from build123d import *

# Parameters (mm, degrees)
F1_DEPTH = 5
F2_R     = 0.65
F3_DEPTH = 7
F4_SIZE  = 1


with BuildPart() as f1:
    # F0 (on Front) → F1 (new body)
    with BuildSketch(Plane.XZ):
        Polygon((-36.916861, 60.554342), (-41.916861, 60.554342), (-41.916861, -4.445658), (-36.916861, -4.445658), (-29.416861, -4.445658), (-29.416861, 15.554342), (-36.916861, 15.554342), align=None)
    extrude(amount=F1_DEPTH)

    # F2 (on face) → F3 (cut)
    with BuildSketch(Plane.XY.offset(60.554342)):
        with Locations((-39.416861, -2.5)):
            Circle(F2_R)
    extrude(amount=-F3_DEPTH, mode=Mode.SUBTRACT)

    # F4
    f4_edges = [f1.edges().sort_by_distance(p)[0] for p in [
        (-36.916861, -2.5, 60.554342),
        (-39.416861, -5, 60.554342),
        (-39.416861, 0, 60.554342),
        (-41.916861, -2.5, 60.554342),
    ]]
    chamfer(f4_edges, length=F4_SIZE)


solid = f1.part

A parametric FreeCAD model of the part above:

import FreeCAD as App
import Part
import Sketcher


def edges_at(feature, points):
    """Names of the edges that pass closest to the given points."""
    edges = feature.Shape.Edges
    near = lambda p: min(range(len(edges)), key=lambda i: edges[i].distToShape(Part.Vertex(*p))[0])
    return sorted({f"Edge{near(p) + 1}" for p in points})

doc = App.newDocument("Part")
params = doc.addObject("Spreadsheet::Sheet", "Params")
for row, (alias, value) in enumerate([
    ("sketch1_width", "5 mm"),
    ("sketch1_height", "65 mm"),
    ("sketch1_height2", "20 mm"),
    ("sketch1_width2", "12.5 mm"),
    ("pad1_length", "5 mm"),
    ("sketch2_diameter", "1.3 mm"),
    ("pocket1_length", "7 mm"),
    ("chamfer_size", "1 mm"),
], start=1):
    params.set(f"A{row}", alias)
    params.set(f"B{row}", "=" + value)
    params.setAlias(f"B{row}", alias)

body = doc.addObject("PartDesign::Body", "Body")

sketch1 = body.newObject("Sketcher::SketchObject", "Sketch")
sketch1.AttachmentSupport = (doc.getObject("XZ_Plane"), [""])
sketch1.MapMode = "FlatFace"
sketch1.addGeometry(Part.LineSegment(App.Vector(-36.916861, 60.554342, 0), App.Vector(-41.916861, 60.554342, 0)), False)
sketch1.addGeometry(Part.LineSegment(App.Vector(-41.916861, 60.554342, 0), App.Vector(-41.916861, -4.445658, 0)), False)
sketch1.addGeometry(Part.LineSegment(App.Vector(-41.916861, -4.445658, 0), App.Vector(-29.416861, -4.445658, 0)), False)
sketch1.addGeometry(Part.LineSegment(App.Vector(-29.416861, -4.445658, 0), App.Vector(-29.416861, 15.554342, 0)), False)
sketch1.addGeometry(Part.LineSegment(App.Vector(-29.416861, 15.554342, 0), App.Vector(-36.916861, 15.554342, 0)), False)
sketch1.addGeometry(Part.LineSegment(App.Vector(-36.916861, 15.554342, 0), App.Vector(-36.916861, 60.554342, 0)), False)
sketch1.addConstraint(Sketcher.Constraint("Coincident", 0, 2, 1, 1))
sketch1.addConstraint(Sketcher.Constraint("Coincident", 1, 2, 2, 1))
sketch1.addConstraint(Sketcher.Constraint("Coincident", 2, 2, 3, 1))
sketch1.addConstraint(Sketcher.Constraint("Coincident", 3, 2, 4, 1))
sketch1.addConstraint(Sketcher.Constraint("Coincident", 4, 2, 5, 1))
sketch1.addConstraint(Sketcher.Constraint("Coincident", 5, 2, 0, 1))
sketch1.addConstraint(Sketcher.Constraint("Horizontal", 0))
sketch1.addConstraint(Sketcher.Constraint("Vertical", 1))
sketch1.addConstraint(Sketcher.Constraint("Horizontal", 2))
sketch1.addConstraint(Sketcher.Constraint("Vertical", 3))
sketch1.addConstraint(Sketcher.Constraint("Horizontal", 4))
sketch1.addConstraint(Sketcher.Constraint("Vertical", 5))
sketch1.addConstraint(Sketcher.Constraint("DistanceX", 0, 2, 0, 1, 5.0))
sketch1.addConstraint(Sketcher.Constraint("DistanceY", 1, 2, 1, 1, 65.0))
sketch1.addConstraint(Sketcher.Constraint("DistanceY", 3, 1, 3, 2, 20.0))
sketch1.addConstraint(Sketcher.Constraint("DistanceX", 2, 1, 2, 2, 12.5))
sketch1.addConstraint(Sketcher.Constraint("DistanceX", 0, 2, -1, 1, 41.916861))
sketch1.addConstraint(Sketcher.Constraint("DistanceY", -1, 1, 0, 2, 60.554342))
sketch1.setExpression("Constraints[12]", "Params.sketch1_width")
sketch1.setExpression("Constraints[13]", "Params.sketch1_height")
sketch1.setExpression("Constraints[14]", "Params.sketch1_height2")
sketch1.setExpression("Constraints[15]", "Params.sketch1_width2")
pad1 = body.newObject("PartDesign::Pad", "Pad")
pad1.Profile = sketch1
pad1.setExpression("Length", "Params.pad1_length")

sketch2 = body.newObject("Sketcher::SketchObject", "Sketch001")
sketch2.AttachmentSupport = (doc.getObject("XY_Plane"), [""])
sketch2.MapMode = "FlatFace"
sketch2.AttachmentOffset = App.Placement(App.Vector(0, 0, 60.554342), App.Rotation())
sketch2.addGeometry(Part.Circle(App.Vector(-39.416861, -2.5, 0), App.Vector(0, 0, 1), 0.65), False)
sketch2.addConstraint(Sketcher.Constraint("Diameter", 0, 1.3))
sketch2.addConstraint(Sketcher.Constraint("DistanceY", 0, 3, -1, 1, 2.5))
sketch2.addConstraint(Sketcher.Constraint("DistanceX", 0, 3, -1, 1, 39.416861))
sketch2.setExpression("Constraints[0]", "Params.sketch2_diameter")
pocket1 = body.newObject("PartDesign::Pocket", "Pocket")
pocket1.Profile = sketch2
pocket1.setExpression("Length", "Params.pocket1_length")
doc.recompute()

chamfer = body.newObject("PartDesign::Chamfer", "Chamfer")
chamfer.Base = (pocket1, edges_at(pocket1, [
    (-36.917, -2.5, 60.554),
    (-39.417, -5, 60.554),
    (-39.417, 0, 60.554),
    (-41.917, -2.5, 60.554),
]))
chamfer.setExpression("Size", "Params.chamfer_size")

doc.recompute()
